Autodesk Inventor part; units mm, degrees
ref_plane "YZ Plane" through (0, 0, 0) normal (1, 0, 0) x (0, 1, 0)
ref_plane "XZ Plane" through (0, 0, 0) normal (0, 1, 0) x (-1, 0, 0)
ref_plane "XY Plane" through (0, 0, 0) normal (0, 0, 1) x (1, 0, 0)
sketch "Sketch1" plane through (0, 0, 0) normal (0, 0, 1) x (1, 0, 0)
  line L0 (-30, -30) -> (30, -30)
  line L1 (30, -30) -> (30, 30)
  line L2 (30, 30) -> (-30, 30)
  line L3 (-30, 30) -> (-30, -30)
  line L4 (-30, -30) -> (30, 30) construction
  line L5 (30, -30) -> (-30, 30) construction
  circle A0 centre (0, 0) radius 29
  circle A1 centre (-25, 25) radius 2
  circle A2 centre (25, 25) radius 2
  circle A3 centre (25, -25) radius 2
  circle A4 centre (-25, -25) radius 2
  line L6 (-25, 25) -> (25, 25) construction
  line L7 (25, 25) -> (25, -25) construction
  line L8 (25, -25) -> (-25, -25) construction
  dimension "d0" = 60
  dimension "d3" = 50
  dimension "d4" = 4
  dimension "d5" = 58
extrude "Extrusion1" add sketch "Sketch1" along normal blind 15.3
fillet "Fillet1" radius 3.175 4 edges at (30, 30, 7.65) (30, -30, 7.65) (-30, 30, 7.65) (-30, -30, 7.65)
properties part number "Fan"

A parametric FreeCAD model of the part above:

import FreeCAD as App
import Part
import Sketcher
Q = App.Units.Quantity


def edges_at(feature, points):
    """Names of the edges that pass closest to the given points."""
    edges = feature.Shape.Edges
    near = lambda p: min(range(len(edges)), key=lambda i: edges[i].distToShape(Part.Vertex(*p))[0])
    return sorted({f"Edge{near(p) + 1}" for p in points})

doc = App.newDocument("Part")
params = doc.addObject("Spreadsheet::Sheet", "Params")
for row, (alias, value) in enumerate([
    ("sketch1_diameter", "4 mm"),
    ("sketch1_diameter2", "58 mm"),
    ("sketch1_width", "60 mm"),
    ("pad1_length", "15.3 mm"),
    ("fillet_radius", "3.175 mm"),
], start=1):
    params.set(f"A{row}", alias)
    params.set(f"B{row}", "=" + value)
    params.setAlias(f"B{row}", alias)

body = doc.addObject("PartDesign::Body", "Body")

sketch1 = doc.addObject("Sketcher::SketchObject", "Sketch")
body.addObject(sketch1)
sketch1.AttachmentSupport = (doc.XY_Plane, [""])
sketch1.MapMode = "FlatFace"
sketch1.addGeometry([
    Part.LineSegment(App.Vector(-30, 30, 0), App.Vector(-30, -30, 0)),
    Part.LineSegment(App.Vector(-30, -30, 0), App.Vector(30, -30, 0)),
    Part.LineSegment(App.Vector(30, -30, 0), App.Vector(30, 30, 0)),
    Part.LineSegment(App.Vector(30, 30, 0), App.Vector(-30, 30, 0)),
    Part.Circle(App.Vector(-25, -25, 0), App.Vector(0, 0, 1), 2),
    Part.Circle(App.Vector(25, -25, 0), App.Vector(0, 0, 1), 2),
    Part.Circle(App.Vector(-25, 25, 0), App.Vector(0, 0, 1), 2),
    Part.Circle(App.Vector(0, 0, 0), App.Vector(0, 0, 1), 29),
    Part.Circle(App.Vector(25, 25, 0), App.Vector(0, 0, 1), 2),
], False)
sketch1.addConstraint([
    Sketcher.Constraint("Coincident", 0, 2, 1, 1),
    Sketcher.Constraint("Coincident", 1, 2, 2, 1),
    Sketcher.Constraint("Coincident", 2, 2, 3, 1),
    Sketcher.Constraint("Coincident", 3, 2, 0, 1),
    Sketcher.Constraint("Vertical", 0),
    Sketcher.Constraint("Horizontal", 1),
    Sketcher.Constraint("Vertical", 2),
    Sketcher.Constraint("Horizontal", 3),
    Sketcher.Constraint("Coincident", 7, 3, -1, 1),
    Sketcher.Constraint("Equal", 4, 5),
    Sketcher.Constraint("Equal", 5, 6),
    Sketcher.Constraint("Equal", 6, 8),
    Sketcher.Constraint("Symmetric", 5, 3, 6, 3, -1, 1),
    Sketcher.Constraint("Symmetric", 4, 3, 8, 3, -1, 1),
    Sketcher.Constraint("Symmetric", 0, 2, 2, 2, -1, 1),
    Sketcher.Constraint("Symmetric", 4, 3, 5, 3, -2),
    Sketcher.Constraint("Equal", 3, 0),
    Sketcher.Constraint("Diameter", 4, Q("4 mm")),
    Sketcher.Constraint("Diameter", 7, Q("58 mm")),
    Sketcher.Constraint("DistanceX", 1, 1, 1, 2, Q("60 mm")),
    Sketcher.Constraint("DistanceX", 4, 3, 5, 3, Q("50 mm")),
    Sketcher.Constraint("DistanceY", 4, 3, 6, 3, Q("50 mm")),
])
sketch1.setExpression("Constraints[17]", "Params.sketch1_diameter")
sketch1.setExpression("Constraints[18]", "Params.sketch1_diameter2")
sketch1.setExpression("Constraints[19]", "Params.sketch1_width")
pad1 = doc.addObject("PartDesign::Pad", "Pad")
body.addObject(pad1)
pad1.Profile = sketch1
pad1.setExpression("Length", "Params.pad1_length")
doc.recompute()

fillet = doc.addObject("PartDesign::Fillet", "Fillet")
body.addObject(fillet)
fillet.Base = (pad1, edges_at(pad1, [
    (30, 30, 7.65),
    (30, -30, 7.65),
    (-30, 30, 7.65),
    (-30, -30, 7.65),
]))
fillet.setExpression("Radius", "Params.fillet_radius")

doc.recompute()
